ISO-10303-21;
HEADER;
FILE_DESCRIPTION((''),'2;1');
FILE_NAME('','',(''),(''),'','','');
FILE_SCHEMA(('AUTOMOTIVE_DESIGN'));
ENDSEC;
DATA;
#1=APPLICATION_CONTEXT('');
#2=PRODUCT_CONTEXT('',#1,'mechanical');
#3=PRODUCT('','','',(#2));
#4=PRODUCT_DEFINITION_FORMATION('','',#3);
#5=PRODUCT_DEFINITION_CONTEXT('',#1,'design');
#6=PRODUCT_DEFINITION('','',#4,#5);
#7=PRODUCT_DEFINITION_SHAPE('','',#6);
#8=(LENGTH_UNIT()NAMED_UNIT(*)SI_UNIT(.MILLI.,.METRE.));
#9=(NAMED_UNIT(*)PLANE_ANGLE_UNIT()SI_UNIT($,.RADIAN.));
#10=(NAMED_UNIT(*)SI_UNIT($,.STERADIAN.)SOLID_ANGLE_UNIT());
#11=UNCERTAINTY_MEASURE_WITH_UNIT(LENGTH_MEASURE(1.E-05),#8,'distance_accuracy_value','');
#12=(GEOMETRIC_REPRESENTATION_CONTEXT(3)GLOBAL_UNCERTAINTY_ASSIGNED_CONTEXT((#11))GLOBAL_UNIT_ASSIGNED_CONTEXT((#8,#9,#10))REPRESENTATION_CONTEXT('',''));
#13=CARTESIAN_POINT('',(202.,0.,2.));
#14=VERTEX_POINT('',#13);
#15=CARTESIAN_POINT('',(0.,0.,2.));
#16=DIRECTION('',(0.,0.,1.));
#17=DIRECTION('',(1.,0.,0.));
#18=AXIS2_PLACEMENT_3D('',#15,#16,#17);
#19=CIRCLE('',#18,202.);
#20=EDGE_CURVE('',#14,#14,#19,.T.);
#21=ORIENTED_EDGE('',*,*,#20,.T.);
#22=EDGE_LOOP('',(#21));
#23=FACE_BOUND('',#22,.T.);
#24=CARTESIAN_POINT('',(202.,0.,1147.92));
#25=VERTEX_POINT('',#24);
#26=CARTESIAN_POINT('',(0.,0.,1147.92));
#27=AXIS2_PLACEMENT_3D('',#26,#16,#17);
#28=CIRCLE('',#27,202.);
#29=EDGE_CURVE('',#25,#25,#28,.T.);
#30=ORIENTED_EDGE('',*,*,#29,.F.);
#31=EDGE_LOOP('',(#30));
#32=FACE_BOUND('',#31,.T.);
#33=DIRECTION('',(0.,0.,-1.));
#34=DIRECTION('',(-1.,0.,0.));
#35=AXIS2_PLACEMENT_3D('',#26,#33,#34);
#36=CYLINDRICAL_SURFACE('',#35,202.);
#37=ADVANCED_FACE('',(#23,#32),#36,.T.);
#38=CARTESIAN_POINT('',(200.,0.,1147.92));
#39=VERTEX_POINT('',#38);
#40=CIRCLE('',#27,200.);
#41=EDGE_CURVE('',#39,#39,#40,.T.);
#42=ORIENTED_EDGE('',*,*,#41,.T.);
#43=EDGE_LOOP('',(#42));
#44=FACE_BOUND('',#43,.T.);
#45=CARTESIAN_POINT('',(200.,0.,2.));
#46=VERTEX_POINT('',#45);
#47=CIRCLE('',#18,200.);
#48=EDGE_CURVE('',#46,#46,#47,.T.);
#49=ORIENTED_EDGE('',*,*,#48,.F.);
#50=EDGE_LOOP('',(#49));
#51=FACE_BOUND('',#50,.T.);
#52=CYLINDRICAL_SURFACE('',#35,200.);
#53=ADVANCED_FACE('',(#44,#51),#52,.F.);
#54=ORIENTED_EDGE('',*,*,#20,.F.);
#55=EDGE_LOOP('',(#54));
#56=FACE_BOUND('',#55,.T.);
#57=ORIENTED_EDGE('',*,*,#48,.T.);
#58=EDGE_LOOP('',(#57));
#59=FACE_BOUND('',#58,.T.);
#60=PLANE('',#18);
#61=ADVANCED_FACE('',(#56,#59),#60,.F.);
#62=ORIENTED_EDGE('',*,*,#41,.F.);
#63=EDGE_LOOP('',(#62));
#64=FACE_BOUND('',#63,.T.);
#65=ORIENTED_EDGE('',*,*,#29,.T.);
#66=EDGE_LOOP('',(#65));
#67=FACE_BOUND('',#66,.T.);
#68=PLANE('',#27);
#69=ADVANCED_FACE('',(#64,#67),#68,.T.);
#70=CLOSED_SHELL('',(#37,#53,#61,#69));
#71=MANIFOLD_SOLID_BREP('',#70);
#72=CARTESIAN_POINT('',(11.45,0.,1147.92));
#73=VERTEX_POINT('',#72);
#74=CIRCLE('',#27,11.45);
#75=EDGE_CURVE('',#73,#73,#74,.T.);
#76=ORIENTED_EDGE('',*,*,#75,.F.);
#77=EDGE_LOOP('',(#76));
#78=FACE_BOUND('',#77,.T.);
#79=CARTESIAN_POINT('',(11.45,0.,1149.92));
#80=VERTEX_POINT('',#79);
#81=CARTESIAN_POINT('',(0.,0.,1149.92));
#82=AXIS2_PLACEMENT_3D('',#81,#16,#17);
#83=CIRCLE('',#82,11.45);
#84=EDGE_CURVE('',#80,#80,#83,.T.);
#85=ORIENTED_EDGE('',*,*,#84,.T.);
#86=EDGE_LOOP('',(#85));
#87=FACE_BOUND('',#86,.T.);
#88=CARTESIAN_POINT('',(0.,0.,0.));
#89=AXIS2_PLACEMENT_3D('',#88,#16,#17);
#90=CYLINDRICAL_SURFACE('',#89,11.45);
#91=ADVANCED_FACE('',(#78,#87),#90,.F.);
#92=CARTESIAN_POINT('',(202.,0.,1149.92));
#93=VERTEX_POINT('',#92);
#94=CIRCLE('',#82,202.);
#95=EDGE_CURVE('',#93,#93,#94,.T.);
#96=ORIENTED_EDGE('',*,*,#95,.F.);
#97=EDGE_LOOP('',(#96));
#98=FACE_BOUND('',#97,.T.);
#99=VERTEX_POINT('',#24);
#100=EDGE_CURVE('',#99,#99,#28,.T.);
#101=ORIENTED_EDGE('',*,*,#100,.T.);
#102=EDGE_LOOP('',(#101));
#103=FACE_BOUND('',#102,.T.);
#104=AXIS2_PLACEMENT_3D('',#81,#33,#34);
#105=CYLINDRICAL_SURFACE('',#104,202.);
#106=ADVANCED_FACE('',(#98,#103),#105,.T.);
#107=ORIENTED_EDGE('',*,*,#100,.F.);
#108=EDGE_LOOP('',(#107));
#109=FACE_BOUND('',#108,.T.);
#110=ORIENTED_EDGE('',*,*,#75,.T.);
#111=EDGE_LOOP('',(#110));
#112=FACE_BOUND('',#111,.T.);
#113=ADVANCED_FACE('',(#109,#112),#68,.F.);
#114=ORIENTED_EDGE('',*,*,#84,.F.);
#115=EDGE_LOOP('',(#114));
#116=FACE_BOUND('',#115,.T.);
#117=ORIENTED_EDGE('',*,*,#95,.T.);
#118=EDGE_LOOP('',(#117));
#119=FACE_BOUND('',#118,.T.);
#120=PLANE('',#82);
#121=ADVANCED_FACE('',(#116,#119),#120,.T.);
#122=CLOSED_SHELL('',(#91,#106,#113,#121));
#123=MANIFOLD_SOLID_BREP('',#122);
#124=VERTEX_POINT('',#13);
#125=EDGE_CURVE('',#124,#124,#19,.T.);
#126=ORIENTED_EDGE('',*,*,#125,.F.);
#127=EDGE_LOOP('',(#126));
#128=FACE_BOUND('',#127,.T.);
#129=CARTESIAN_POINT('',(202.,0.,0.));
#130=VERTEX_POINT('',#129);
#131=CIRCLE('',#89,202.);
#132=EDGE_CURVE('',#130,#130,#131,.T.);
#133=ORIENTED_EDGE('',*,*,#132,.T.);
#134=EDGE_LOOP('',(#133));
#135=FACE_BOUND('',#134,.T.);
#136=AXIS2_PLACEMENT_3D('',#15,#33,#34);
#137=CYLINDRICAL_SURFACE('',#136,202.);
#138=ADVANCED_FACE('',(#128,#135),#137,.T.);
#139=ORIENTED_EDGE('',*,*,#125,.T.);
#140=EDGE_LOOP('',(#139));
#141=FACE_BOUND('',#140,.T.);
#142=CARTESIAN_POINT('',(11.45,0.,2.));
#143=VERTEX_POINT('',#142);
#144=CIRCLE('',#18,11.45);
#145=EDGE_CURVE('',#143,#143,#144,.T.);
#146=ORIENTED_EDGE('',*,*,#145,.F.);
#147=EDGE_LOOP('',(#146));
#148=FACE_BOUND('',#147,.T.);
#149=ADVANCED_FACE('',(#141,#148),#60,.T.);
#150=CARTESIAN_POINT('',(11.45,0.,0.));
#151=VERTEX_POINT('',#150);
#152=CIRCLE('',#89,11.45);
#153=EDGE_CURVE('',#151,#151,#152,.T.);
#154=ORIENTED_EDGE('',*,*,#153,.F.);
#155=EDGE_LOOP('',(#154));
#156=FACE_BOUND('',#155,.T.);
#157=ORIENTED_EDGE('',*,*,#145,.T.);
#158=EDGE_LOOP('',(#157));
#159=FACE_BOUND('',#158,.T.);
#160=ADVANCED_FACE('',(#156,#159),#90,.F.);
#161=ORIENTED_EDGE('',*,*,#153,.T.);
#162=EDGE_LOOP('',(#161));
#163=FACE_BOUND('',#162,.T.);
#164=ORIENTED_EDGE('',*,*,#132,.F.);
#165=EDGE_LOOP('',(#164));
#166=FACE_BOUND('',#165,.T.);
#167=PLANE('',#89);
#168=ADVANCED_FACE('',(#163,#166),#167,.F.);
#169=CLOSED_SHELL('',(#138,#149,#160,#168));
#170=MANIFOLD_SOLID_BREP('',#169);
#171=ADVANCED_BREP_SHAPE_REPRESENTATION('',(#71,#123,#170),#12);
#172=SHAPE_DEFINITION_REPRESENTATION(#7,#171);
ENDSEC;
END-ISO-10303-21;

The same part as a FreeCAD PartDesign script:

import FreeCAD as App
import Part
import Sketcher
from FreeCAD import Vector

doc = App.newDocument("Part")
body = doc.addObject("PartDesign::Body", "Body")

# Sketch on XY plane
sketch1 = body.newObject("Sketcher::SketchObject", "Sketch")
sketch1.AttachmentSupport = (doc.getObject("XY_Plane"), [""])
sketch1.MapMode = "FlatFace"
sketch1.addGeometry(Part.Circle(Vector(0, 0, 0), Vector(0, 0, 1), 202), False)
sketch1.addConstraint(Sketcher.Constraint("Coincident", 0, 3, -1, 1))
sketch1.addConstraint(Sketcher.Constraint("Diameter", 0, 404.0))
pad1 = body.newObject("PartDesign::Pad", "Pad")
pad1.Profile = sketch1
pad1.Length = 2
body2 = doc.addObject("PartDesign::Body", "Body001")

# Sketch on XY plane
sketch2 = body2.newObject("Sketcher::SketchObject", "Sketch001")
sketch2.AttachmentSupport = (doc.getObject("XY_Plane001"), [""])
sketch2.MapMode = "FlatFace"
sketch2.AttachmentOffset = App.Placement(Vector(0, 0, 2), App.Rotation())
sketch2.addGeometry(Part.Circle(Vector(0, 0, 0), Vector(0, 0, 1), 202), False)
sketch2.addGeometry(Part.Circle(Vector(0, 0, 0), Vector(0, 0, 1), 200), False)
sketch2.addConstraint(Sketcher.Constraint("Coincident", 0, 3, -1, 1))
sketch2.addConstraint(Sketcher.Constraint("Coincident", 1, 3, -1, 1))
sketch2.addConstraint(Sketcher.Constraint("Diameter", 0, 404.0))
sketch2.addConstraint(Sketcher.Constraint("Diameter", 1, 400.0))
pad2 = body2.newObject("PartDesign::Pad", "Pad001")
pad2.Profile = sketch2
pad2.Length = 1145.92
body3 = doc.addObject("PartDesign::Body", "Body002")

# Sketch on XY plane
sketch3 = body3.newObject("Sketcher::SketchObject", "Sketch002")
sketch3.AttachmentSupport = (doc.getObject("XY_Plane002"), [""])
sketch3.MapMode = "FlatFace"
sketch3.AttachmentOffset = App.Placement(Vector(0, 0, 1147.92), App.Rotation())
sketch3.addGeometry(Part.Circle(Vector(0, 0, 0), Vector(0, 0, 1), 202), False)
sketch3.addConstraint(Sketcher.Constraint("Coincident", 0, 3, -1, 1))
sketch3.addConstraint(Sketcher.Constraint("Diameter", 0, 404.0))
pad3 = body3.newObject("PartDesign::Pad", "Pad002")
pad3.Profile = sketch3
pad3.Length = 2
body4 = doc.addObject("PartDesign::Body", "Body003")

# Sketch on XY plane
sketch4 = body4.newObject("Sketcher::SketchObject", "Sketch003")
sketch4.AttachmentSupport = (doc.getObject("XY_Plane003"), [""])
sketch4.MapMode = "FlatFace"
sketch4.AttachmentOffset = App.Placement(Vector(0, 0, 1149.92), App.Rotation())
sketch4.addGeometry(Part.Circle(Vector(0, 0, 0), Vector(0, 0, 1), 11), False)
sketch4.addConstraint(Sketcher.Constraint("Coincident", 0, 3, -1, 1))
sketch4.addConstraint(Sketcher.Constraint("Diameter", 0, 22.9))
pad4 = body4.newObject("PartDesign::Pad", "Pad003")
pad4.Profile = sketch4
pad4.Length = 1185.872992
pad4.Reversed = True
doc.recompute()

body5 = doc.addObject("PartDesign::Body", "Body004")
body5.BaseFeature = body4
boolean = body.newObject("PartDesign::Boolean", "Boolean")
boolean.Type = "Cut"
boolean.addObjects([body5])
doc.recompute()

boolean2 = body3.newObject("PartDesign::Boolean", "Boolean001")
boolean2.Type = "Cut"
boolean2.addObjects([body4])

doc.recompute()
